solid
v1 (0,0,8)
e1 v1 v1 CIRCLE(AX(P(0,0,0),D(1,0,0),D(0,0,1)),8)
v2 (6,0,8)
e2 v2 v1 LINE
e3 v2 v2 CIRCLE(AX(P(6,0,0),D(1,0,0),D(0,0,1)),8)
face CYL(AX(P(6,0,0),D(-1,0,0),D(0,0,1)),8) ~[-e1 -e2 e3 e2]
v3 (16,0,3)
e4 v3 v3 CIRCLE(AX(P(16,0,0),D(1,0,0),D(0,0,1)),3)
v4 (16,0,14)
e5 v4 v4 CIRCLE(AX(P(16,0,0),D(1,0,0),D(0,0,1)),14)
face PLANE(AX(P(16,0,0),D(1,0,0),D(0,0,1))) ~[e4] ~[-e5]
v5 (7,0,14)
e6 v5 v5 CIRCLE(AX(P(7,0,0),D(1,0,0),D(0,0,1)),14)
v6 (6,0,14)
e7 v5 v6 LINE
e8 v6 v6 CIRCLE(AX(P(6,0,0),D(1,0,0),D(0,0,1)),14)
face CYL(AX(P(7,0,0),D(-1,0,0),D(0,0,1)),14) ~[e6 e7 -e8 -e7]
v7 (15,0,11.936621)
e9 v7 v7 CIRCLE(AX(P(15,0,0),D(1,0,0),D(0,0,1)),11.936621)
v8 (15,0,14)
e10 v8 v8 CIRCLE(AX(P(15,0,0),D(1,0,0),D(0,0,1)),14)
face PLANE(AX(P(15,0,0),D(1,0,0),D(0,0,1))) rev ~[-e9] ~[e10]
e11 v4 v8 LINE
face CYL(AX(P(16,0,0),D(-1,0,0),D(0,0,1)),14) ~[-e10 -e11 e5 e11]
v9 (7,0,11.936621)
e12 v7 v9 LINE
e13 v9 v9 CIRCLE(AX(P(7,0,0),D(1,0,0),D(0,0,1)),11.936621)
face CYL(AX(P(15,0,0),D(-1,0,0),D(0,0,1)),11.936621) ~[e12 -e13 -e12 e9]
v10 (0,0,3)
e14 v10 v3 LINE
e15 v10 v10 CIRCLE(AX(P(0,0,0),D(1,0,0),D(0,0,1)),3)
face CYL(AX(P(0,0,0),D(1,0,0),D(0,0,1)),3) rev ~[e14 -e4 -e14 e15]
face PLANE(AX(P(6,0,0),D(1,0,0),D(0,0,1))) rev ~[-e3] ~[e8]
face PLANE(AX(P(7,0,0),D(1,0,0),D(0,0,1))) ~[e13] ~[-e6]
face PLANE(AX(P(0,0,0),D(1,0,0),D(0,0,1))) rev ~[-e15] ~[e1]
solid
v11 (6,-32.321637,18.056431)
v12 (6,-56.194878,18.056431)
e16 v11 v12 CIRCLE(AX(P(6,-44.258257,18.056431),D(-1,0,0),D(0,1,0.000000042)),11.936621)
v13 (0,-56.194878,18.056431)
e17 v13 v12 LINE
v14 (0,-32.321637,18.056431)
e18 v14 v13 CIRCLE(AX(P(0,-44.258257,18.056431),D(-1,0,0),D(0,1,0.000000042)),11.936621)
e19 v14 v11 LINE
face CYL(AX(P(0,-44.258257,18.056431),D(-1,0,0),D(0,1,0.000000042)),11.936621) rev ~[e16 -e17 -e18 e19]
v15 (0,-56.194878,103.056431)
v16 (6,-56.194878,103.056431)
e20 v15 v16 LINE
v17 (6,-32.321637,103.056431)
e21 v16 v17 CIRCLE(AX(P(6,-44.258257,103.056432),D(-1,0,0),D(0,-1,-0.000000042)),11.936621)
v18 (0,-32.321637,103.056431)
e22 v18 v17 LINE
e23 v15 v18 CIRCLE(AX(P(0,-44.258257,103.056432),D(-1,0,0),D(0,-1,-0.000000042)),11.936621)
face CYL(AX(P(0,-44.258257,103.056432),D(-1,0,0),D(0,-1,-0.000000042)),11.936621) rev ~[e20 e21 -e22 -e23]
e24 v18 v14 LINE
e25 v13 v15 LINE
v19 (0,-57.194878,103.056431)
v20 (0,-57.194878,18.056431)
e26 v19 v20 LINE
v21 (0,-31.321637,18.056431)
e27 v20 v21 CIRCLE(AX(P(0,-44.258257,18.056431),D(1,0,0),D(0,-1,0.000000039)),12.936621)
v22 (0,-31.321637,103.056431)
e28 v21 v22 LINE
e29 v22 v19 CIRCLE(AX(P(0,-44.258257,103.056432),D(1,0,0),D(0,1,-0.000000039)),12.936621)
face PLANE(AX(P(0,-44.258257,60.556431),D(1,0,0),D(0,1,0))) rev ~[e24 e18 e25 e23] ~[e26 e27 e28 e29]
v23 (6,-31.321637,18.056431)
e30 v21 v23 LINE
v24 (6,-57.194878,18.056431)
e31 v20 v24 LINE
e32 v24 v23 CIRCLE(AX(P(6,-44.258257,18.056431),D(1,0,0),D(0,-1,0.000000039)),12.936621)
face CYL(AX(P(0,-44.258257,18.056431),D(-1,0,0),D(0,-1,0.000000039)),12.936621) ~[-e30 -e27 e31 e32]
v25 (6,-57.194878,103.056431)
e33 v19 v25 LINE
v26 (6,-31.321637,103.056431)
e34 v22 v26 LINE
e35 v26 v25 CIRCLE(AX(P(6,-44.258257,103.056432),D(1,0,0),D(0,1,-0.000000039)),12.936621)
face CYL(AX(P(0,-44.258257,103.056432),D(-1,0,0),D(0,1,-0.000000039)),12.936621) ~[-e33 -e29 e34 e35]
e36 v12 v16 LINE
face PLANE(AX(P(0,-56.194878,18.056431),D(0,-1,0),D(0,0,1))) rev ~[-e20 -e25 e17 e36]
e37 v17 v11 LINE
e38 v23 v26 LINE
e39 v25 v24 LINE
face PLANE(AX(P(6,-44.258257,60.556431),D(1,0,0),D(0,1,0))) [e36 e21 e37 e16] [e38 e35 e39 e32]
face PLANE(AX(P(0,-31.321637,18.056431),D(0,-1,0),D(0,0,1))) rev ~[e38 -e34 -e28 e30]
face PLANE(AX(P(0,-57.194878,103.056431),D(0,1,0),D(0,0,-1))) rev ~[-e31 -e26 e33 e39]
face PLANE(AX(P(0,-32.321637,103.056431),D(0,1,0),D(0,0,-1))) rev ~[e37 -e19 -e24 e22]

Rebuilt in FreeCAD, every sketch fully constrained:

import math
import FreeCAD as App
import Part
import Sketcher
Q = App.Units.Quantity


def add_polygon(sketch, points):
    """Adds a closed chain of lines whose ends are joined by coincident constraints."""
    first, n = sketch.GeometryCount, len(points)
    for a, b in zip(points, points[1:] + points[:1]):
        sketch.addGeometry(Part.LineSegment(App.Vector(*a, 0), App.Vector(*b, 0)), False)
    for i in range(n):
        sketch.addConstraint(Sketcher.Constraint("Coincident", first + i, 2, first + (i + 1) % n, 1))

doc = App.newDocument("Part")
body = doc.addObject("PartDesign::Body", "Body")

# Sketch on XZ plane
sketch1 = doc.addObject("Sketcher::SketchObject", "Sketch")
body.addObject(sketch1)
sketch1.AttachmentSupport = (doc.XZ_Plane, [""])
sketch1.MapMode = "FlatFace"
add_polygon(sketch1, [(0, 8), (0, 3), (16, 3), (16, 14), (15, 14), (15, 11.9), (7, 11.9), (7, 14), (6, 14), (6, 8)])  # lines 0-9
sketch1.addConstraint(Sketcher.Constraint("Vertical", 0))
sketch1.addConstraint(Sketcher.Constraint("Horizontal", 1))
sketch1.addConstraint(Sketcher.Constraint("Vertical", 2))
sketch1.addConstraint(Sketcher.Constraint("Horizontal", 3))
sketch1.addConstraint(Sketcher.Constraint("Vertical", 4))
sketch1.addConstraint(Sketcher.Constraint("Horizontal", 5))
sketch1.addConstraint(Sketcher.Constraint("Vertical", 6))
sketch1.addConstraint(Sketcher.Constraint("Horizontal", 7))
sketch1.addConstraint(Sketcher.Constraint("Vertical", 8))
sketch1.addConstraint(Sketcher.Constraint("Horizontal", 9))
sketch1.addConstraint(Sketcher.Constraint("PointOnObject", 0, 2, -2))
sketch1.addConstraint(Sketcher.Constraint("Horizontal", 3, 2, 6, 2))
sketch1.addConstraint(Sketcher.Constraint("Equal", 3, 7))
sketch1.addConstraint(Sketcher.Constraint("Equal", 9, 8))
sketch1.addConstraint(Sketcher.Constraint("DistanceX", 1, 1, 1, 2, Q("16 mm")))
sketch1.addConstraint(Sketcher.Constraint("DistanceX", 3, 2, 3, 1, Q("1 mm")))
sketch1.addConstraint(Sketcher.Constraint("DistanceX", 5, 2, 5, 1, Q("8 mm")))
sketch1.addConstraint(Sketcher.Constraint("DistanceY", 0, 2, 0, 1, Q("5 mm")))
sketch1.addConstraint(Sketcher.Constraint("DistanceY", -1, 1, 0, 2, Q("3 mm")))
sketch1.addConstraint(Sketcher.Constraint("DistanceY", 4, 2, 4, 1, Q("2.063379 mm")))
revolution = doc.addObject("PartDesign::Revolution", "Revolution")
body.addObject(revolution)
revolution.Profile = sketch1
revolution.ReferenceAxis = (sketch1, ["H_Axis"])
revolution.Angle = 360
body2 = doc.addObject("PartDesign::Body", "Body001")

# Sketch on YZ plane
sketch2 = doc.addObject("Sketcher::SketchObject", "Sketch001")
body2.addObject(sketch2)
sketch2.AttachmentSupport = (doc.getObject("YZ_Plane001"), [""])
sketch2.MapMode = "FlatFace"
sketch2.addGeometry(Part.LineSegment(App.Vector(-31, 18, 0), App.Vector(-31, 103, 0)), False)
sketch2.addGeometry(Part.ArcOfCircle(Part.Circle(App.Vector(-44, 103, 0), App.Vector(0, 0, 1), 13), math.radians(0), math.radians(180)), False)
sketch2.addGeometry(Part.LineSegment(App.Vector(-57, 103, 0), App.Vector(-57, 18, 0)), False)
sketch2.addGeometry(Part.ArcOfCircle(Part.Circle(App.Vector(-44, 18, 0), App.Vector(0, 0, 1), 13), math.radians(180), math.radians(360)), False)
sketch2.addGeometry(Part.LineSegment(App.Vector(-32, 103, 0), App.Vector(-32, 18, 0)), False)
sketch2.addGeometry(Part.ArcOfCircle(Part.Circle(App.Vector(-44, 18, 0), App.Vector(0, 0, 1), 12), math.radians(180), math.radians(360)), False)
sketch2.addGeometry(Part.LineSegment(App.Vector(-56, 18, 0), App.Vector(-56, 103, 0)), False)
sketch2.addGeometry(Part.ArcOfCircle(Part.Circle(App.Vector(-44, 103, 0), App.Vector(0, 0, 1), 12), math.radians(0), math.radians(180)), False)
sketch2.addConstraint(Sketcher.Constraint("Tangent", 0, 2, 1, 1))
sketch2.addConstraint(Sketcher.Constraint("Tangent", 1, 2, 2, 1))
sketch2.addConstraint(Sketcher.Constraint("Tangent", 2, 2, 3, 1))
sketch2.addConstraint(Sketcher.Constraint("Tangent", 3, 2, 0, 1))
sketch2.addConstraint(Sketcher.Constraint("Tangent", 4, 2, 5, 2))
sketch2.addConstraint(Sketcher.Constraint("Tangent", 5, 1, 6, 1))
sketch2.addConstraint(Sketcher.Constraint("Tangent", 6, 2, 7, 2))
sketch2.addConstraint(Sketcher.Constraint("Tangent", 7, 1, 4, 1))
sketch2.addConstraint(Sketcher.Constraint("Vertical", 0))
sketch2.addConstraint(Sketcher.Constraint("Vertical", 2))
sketch2.addConstraint(Sketcher.Constraint("Vertical", 4))
sketch2.addConstraint(Sketcher.Constraint("Vertical", 6))
sketch2.addConstraint(Sketcher.Constraint("Coincident", 5, 3, 3, 3))
sketch2.addConstraint(Sketcher.Constraint("Horizontal", 7, 3, 0, 2))
sketch2.addConstraint(Sketcher.Constraint("DistanceY", 0, 1, 0, 2, Q("85 mm")))
sketch2.addConstraint(Sketcher.Constraint("DistanceX", 4, 2, 3, 2, Q("1 mm")))
sketch2.addConstraint(Sketcher.Constraint("Radius", 1, Q("12.936621 mm")))
sketch2.addConstraint(Sketcher.Constraint("DistanceY", -1, 1, 1, 3, Q("103.056432 mm")))
sketch2.addConstraint(Sketcher.Constraint("DistanceX", 2, 2, -1, 1, Q("57.194878 mm")))
pad1 = doc.addObject("PartDesign::Pad", "Pad")
body2.addObject(pad1)
pad1.Profile = sketch2
pad1.Length = 6

doc.recompute()
